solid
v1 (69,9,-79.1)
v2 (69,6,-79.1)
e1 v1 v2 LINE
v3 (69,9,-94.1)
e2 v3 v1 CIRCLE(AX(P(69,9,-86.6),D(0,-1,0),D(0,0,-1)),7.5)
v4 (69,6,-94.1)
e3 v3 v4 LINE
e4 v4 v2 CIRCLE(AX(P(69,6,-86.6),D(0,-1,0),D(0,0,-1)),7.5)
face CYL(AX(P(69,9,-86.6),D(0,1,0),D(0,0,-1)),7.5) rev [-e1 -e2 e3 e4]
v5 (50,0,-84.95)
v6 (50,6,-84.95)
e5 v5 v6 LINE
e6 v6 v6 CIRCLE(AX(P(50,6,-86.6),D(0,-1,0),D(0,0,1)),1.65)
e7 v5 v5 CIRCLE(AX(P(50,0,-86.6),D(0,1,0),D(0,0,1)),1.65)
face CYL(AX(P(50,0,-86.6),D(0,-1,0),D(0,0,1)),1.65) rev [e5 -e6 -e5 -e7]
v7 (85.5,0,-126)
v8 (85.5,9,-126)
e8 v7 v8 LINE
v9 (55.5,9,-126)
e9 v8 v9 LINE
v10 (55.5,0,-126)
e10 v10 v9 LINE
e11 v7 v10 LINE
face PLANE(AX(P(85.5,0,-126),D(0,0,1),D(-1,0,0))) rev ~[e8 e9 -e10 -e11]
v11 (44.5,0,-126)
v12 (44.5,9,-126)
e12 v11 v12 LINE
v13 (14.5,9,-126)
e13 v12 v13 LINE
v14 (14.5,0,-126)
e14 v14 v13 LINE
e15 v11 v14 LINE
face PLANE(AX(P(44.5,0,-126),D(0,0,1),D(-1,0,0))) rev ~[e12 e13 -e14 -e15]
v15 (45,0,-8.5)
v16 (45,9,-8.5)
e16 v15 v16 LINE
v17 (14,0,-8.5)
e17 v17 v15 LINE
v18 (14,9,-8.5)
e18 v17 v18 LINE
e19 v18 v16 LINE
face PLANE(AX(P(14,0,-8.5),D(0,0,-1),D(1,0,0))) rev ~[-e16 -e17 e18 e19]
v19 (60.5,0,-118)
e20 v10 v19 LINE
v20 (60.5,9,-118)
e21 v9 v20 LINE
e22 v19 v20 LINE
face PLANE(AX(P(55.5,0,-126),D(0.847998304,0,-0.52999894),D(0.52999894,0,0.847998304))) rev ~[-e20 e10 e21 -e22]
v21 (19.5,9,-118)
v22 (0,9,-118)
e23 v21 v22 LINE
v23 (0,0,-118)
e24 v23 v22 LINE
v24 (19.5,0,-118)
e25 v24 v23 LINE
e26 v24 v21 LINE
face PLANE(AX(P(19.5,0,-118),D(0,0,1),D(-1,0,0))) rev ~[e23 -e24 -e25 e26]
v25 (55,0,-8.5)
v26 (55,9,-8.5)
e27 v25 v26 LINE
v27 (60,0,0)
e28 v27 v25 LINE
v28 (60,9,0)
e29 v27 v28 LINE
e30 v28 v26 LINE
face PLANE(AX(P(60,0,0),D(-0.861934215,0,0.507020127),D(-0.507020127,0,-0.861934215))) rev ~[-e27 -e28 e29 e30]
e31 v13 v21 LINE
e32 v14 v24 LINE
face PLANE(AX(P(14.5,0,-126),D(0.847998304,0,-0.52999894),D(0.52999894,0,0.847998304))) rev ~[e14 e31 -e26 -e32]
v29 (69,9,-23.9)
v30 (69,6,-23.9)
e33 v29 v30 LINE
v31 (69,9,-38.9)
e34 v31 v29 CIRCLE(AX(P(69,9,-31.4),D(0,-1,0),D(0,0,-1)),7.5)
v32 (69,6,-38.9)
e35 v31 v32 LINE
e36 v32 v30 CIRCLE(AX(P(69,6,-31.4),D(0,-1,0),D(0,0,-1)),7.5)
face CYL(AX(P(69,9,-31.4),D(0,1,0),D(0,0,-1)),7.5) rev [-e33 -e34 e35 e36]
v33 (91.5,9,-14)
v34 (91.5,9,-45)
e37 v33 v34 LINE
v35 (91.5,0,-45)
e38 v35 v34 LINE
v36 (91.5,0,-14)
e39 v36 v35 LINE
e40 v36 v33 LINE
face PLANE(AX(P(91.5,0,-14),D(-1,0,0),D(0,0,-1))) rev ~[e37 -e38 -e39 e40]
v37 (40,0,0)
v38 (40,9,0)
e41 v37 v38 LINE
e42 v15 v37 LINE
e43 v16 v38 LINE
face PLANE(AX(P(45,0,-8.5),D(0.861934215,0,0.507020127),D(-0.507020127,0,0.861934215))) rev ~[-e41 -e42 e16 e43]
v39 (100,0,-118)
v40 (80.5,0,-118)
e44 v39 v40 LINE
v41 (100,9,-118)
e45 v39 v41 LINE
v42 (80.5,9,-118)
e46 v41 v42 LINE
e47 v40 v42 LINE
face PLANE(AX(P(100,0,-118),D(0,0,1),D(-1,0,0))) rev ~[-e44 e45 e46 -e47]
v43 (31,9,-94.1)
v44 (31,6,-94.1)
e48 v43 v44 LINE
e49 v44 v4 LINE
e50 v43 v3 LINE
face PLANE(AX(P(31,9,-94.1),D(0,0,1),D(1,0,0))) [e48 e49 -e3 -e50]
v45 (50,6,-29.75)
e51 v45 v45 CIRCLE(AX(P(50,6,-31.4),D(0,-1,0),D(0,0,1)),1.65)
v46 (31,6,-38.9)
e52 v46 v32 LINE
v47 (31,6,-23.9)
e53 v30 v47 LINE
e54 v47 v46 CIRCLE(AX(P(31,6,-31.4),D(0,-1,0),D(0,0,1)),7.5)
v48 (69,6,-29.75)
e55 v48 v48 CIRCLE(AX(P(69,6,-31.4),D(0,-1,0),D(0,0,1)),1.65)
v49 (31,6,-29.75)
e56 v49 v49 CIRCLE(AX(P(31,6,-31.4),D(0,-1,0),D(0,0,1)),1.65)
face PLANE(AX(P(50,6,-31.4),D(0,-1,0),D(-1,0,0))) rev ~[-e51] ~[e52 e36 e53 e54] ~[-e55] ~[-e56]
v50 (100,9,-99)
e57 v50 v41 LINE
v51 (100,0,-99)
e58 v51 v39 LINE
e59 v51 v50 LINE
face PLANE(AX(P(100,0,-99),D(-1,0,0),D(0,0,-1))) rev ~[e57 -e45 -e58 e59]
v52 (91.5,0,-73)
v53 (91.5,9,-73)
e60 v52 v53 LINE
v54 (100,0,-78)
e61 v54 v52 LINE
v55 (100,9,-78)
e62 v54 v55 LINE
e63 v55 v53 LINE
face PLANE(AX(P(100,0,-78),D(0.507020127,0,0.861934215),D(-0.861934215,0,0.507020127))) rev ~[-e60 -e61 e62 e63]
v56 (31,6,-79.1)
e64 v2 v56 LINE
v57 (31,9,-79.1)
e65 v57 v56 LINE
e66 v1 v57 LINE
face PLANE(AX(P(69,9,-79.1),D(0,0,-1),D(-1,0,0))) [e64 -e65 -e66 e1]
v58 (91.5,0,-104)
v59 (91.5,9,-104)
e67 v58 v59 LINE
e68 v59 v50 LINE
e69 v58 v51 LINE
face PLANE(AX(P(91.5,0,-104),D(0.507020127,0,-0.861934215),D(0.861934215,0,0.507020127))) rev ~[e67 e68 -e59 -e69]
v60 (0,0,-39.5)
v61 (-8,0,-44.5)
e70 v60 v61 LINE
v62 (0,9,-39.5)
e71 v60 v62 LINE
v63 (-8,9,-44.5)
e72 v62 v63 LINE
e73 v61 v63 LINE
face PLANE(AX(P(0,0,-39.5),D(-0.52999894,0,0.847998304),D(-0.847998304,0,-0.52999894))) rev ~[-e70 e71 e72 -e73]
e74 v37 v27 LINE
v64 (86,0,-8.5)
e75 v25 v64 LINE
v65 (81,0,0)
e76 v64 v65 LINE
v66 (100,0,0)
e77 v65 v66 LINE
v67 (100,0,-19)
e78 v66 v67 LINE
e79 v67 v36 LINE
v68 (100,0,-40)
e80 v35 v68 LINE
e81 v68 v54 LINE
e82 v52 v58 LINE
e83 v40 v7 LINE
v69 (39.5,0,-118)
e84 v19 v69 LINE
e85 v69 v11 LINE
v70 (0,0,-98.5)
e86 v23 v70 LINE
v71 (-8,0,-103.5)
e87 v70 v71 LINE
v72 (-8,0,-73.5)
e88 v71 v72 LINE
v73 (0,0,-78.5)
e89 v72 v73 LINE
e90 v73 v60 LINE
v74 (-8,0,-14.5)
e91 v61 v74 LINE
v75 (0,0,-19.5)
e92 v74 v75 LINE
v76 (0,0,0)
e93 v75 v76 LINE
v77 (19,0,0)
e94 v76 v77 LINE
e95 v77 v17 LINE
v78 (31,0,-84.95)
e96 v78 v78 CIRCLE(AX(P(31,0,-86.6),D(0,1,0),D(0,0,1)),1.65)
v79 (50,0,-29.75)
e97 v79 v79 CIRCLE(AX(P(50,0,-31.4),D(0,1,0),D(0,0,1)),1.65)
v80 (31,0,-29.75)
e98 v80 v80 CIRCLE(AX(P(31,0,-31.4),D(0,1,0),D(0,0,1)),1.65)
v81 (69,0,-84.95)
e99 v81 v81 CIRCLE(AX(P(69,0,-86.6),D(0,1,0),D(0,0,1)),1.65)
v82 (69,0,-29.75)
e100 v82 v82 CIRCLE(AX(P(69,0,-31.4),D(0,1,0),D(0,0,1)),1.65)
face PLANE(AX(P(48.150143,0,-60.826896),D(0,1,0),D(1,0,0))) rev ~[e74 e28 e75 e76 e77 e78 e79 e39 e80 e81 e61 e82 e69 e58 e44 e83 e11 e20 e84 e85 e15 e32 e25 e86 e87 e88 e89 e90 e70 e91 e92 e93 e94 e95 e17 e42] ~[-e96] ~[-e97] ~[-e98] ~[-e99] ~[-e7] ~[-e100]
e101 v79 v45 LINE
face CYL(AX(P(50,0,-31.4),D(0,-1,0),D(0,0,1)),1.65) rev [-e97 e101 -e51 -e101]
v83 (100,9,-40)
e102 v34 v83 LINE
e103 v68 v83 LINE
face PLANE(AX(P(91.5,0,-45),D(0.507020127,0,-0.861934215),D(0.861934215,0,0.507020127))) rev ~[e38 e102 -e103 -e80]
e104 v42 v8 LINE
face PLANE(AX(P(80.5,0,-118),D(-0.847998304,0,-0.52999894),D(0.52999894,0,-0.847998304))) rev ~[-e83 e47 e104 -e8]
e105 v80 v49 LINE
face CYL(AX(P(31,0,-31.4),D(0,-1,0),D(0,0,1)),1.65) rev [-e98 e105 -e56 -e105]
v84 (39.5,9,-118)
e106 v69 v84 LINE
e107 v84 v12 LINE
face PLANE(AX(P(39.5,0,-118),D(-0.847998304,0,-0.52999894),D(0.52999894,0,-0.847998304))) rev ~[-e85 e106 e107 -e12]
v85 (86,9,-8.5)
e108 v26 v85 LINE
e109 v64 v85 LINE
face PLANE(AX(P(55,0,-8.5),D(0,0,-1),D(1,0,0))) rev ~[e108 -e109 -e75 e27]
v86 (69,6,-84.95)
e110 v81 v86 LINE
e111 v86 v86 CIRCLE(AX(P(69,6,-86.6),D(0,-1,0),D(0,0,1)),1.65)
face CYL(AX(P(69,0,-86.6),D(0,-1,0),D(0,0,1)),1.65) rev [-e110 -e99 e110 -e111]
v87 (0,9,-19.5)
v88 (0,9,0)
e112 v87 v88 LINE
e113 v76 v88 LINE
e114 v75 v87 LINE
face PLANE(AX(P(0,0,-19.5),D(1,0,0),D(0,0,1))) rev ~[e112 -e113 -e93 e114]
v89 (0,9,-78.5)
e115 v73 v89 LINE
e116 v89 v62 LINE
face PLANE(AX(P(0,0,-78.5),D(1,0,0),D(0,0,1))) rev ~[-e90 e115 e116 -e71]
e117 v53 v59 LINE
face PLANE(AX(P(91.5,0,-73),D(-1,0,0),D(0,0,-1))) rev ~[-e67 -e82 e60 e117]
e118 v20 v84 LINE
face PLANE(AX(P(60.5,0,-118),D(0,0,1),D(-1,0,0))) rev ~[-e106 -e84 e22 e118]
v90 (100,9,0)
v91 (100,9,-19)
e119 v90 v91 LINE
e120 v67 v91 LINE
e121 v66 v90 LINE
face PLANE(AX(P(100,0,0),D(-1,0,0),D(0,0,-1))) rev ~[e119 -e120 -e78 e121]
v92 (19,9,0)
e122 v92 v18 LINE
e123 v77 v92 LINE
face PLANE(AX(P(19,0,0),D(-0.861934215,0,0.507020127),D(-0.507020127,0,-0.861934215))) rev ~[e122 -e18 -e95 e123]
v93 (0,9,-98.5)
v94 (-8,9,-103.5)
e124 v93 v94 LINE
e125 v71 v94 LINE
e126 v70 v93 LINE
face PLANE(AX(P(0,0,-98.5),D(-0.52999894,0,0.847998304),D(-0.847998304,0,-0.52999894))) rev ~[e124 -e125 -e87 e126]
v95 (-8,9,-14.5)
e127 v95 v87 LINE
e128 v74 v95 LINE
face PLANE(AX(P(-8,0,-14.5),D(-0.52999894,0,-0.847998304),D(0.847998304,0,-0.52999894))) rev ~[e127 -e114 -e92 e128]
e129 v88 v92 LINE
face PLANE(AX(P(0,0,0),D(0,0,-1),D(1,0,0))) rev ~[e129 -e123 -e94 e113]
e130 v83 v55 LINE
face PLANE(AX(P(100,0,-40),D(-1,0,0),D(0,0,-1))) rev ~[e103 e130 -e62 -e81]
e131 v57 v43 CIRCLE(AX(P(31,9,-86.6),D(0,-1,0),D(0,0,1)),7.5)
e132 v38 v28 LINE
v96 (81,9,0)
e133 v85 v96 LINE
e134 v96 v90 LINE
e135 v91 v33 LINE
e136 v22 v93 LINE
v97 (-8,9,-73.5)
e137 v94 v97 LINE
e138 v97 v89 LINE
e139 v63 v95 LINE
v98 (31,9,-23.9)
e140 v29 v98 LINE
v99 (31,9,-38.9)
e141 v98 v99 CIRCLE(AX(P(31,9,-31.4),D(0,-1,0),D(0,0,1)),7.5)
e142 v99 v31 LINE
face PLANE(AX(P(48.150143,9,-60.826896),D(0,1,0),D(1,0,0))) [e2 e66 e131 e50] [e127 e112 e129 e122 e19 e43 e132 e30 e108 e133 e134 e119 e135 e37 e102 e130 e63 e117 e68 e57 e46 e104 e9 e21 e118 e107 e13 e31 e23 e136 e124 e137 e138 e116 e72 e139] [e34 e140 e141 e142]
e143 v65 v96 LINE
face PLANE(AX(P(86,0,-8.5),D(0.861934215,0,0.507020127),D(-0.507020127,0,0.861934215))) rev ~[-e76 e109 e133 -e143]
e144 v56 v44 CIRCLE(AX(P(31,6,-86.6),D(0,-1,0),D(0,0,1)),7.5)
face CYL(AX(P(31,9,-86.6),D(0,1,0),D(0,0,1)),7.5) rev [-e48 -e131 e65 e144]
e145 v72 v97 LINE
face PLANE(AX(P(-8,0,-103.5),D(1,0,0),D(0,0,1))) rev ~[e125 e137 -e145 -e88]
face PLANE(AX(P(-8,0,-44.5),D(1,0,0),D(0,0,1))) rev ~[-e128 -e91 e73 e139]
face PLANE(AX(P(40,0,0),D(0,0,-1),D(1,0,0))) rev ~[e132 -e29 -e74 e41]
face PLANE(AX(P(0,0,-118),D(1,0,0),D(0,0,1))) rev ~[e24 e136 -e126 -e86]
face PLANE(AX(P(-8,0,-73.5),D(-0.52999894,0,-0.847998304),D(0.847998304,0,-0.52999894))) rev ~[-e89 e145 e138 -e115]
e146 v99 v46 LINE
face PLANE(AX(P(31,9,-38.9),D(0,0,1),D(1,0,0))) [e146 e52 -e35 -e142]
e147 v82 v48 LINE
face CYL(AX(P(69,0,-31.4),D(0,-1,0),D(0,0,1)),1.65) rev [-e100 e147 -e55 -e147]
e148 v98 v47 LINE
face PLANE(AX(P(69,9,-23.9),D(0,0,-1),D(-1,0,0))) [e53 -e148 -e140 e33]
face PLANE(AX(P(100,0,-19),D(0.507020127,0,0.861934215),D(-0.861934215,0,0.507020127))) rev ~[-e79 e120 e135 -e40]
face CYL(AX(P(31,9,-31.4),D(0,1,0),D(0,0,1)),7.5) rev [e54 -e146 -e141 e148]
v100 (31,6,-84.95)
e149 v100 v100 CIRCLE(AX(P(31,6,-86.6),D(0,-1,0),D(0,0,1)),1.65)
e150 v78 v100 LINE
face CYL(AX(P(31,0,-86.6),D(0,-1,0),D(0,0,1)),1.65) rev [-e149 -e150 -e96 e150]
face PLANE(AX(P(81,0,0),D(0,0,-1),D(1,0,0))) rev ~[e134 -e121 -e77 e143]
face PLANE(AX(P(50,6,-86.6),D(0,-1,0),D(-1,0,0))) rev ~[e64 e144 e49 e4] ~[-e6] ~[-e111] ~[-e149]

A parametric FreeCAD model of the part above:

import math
import FreeCAD as App
import Part
import Sketcher
from FreeCAD import Vector
Q = App.Units.Quantity

doc = App.newDocument("Part")
body = doc.addObject("PartDesign::Body", "Body")

# Sketch on XZ plane
sketch1 = body.newObject("Sketcher::SketchObject", "Sketch")
sketch1.AttachmentSupport = (doc.getObject("XZ_Plane"), [""])
sketch1.MapMode = "FlatFace"
sketch1.addGeometry([
    Part.LineSegment(Vector(0, -98.5, 0), Vector(-8, -103.5, 0)),  # 0
    Part.LineSegment(Vector(-8, -103.5, 0), Vector(-8, -73.5, 0)),  # 1
    Part.LineSegment(Vector(-8, -73.5, 0), Vector(0, -78.5, 0)),  # 2
    Part.LineSegment(Vector(0, -78.5, 0), Vector(0, -39.5, 0)),  # 3
    Part.LineSegment(Vector(0, -39.5, 0), Vector(-8, -44.5, 0)),  # 4
    Part.LineSegment(Vector(-8, -44.5, 0), Vector(-8, -14.5, 0)),  # 5
    Part.LineSegment(Vector(-8, -14.5, 0), Vector(0, -19.5, 0)),  # 6
    Part.LineSegment(Vector(0, -19.5, 0), Vector(0, 0, 0)),  # 7
    Part.LineSegment(Vector(0, 0, 0), Vector(19, 0, 0)),  # 8
    Part.LineSegment(Vector(19, 0, 0), Vector(14, -8.5, 0)),  # 9
    Part.LineSegment(Vector(14, -8.5, 0), Vector(45, -8.5, 0)),  # 10
    Part.LineSegment(Vector(45, -8.5, 0), Vector(40, 0, 0)),  # 11
    Part.LineSegment(Vector(40, 0, 0), Vector(60, 0, 0)),  # 12
    Part.LineSegment(Vector(60, 0, 0), Vector(55, -8.5, 0)),  # 13
    Part.LineSegment(Vector(55, -8.5, 0), Vector(86, -8.5, 0)),  # 14
    Part.LineSegment(Vector(86, -8.5, 0), Vector(81, 0, 0)),  # 15
    Part.LineSegment(Vector(81, 0, 0), Vector(100, 0, 0)),  # 16
    Part.LineSegment(Vector(100, 0, 0), Vector(100, -19, 0)),  # 17
    Part.LineSegment(Vector(100, -19, 0), Vector(91.5, -14, 0)),  # 18
    Part.LineSegment(Vector(91.5, -14, 0), Vector(91.5, -45, 0)),  # 19
    Part.LineSegment(Vector(91.5, -45, 0), Vector(100, -40, 0)),  # 20
    Part.LineSegment(Vector(100, -40, 0), Vector(100, -78, 0)),  # 21
    Part.LineSegment(Vector(100, -78, 0), Vector(91.5, -73, 0)),  # 22
    Part.LineSegment(Vector(91.5, -73, 0), Vector(91.5, -104, 0)),  # 23
    Part.LineSegment(Vector(91.5, -104, 0), Vector(100, -99, 0)),  # 24
    Part.LineSegment(Vector(100, -99, 0), Vector(100, -118, 0)),  # 25
    Part.LineSegment(Vector(100, -118, 0), Vector(80.5, -118, 0)),  # 26
    Part.LineSegment(Vector(80.5, -118, 0), Vector(85.5, -126, 0)),  # 27
    Part.LineSegment(Vector(85.5, -126, 0), Vector(55.5, -126, 0)),  # 28
    Part.LineSegment(Vector(55.5, -126, 0), Vector(60.5, -118, 0)),  # 29
    Part.LineSegment(Vector(60.5, -118, 0), Vector(39.5, -118, 0)),  # 30
    Part.LineSegment(Vector(39.5, -118, 0), Vector(44.5, -126, 0)),  # 31
    Part.LineSegment(Vector(44.5, -126, 0), Vector(14.5, -126, 0)),  # 32
    Part.LineSegment(Vector(14.5, -126, 0), Vector(19.5, -118, 0)),  # 33
    Part.LineSegment(Vector(19.5, -118, 0), Vector(0, -118, 0)),  # 34
    Part.LineSegment(Vector(0, -118, 0), Vector(0, -98.5, 0)),  # 35
    Part.Circle(Vector(31, -31.4, 0), Vector(0, 0, 1), 1.6),  # 36
    Part.Circle(Vector(50, -31.4, 0), Vector(0, 0, 1), 1.6),  # 37
    Part.Circle(Vector(69, -31.4, 0), Vector(0, 0, 1), 1.6),  # 38
    Part.Circle(Vector(31, -86.6, 0), Vector(0, 0, 1), 1.6),  # 39
    Part.Circle(Vector(50, -86.6, 0), Vector(0, 0, 1), 1.6),  # 40
    Part.Circle(Vector(69, -86.6, 0), Vector(0, 0, 1), 1.6),  # 41
], False)
sketch1.addConstraint([
    Sketcher.Constraint("Coincident", 0, 2, 1, 1),
    Sketcher.Constraint("Coincident", 1, 2, 2, 1),
    Sketcher.Constraint("Coincident", 2, 2, 3, 1),
    Sketcher.Constraint("Coincident", 3, 2, 4, 1),
    Sketcher.Constraint("Coincident", 4, 2, 5, 1),
    Sketcher.Constraint("Coincident", 5, 2, 6, 1),
    Sketcher.Constraint("Coincident", 6, 2, 7, 1),
    Sketcher.Constraint("Coincident", 7, 2, 8, 1),
    Sketcher.Constraint("Coincident", 8, 2, 9, 1),
    Sketcher.Constraint("Coincident", 9, 2, 10, 1),
    Sketcher.Constraint("Coincident", 10, 2, 11, 1),
    Sketcher.Constraint("Coincident", 11, 2, 12, 1),
    Sketcher.Constraint("Coincident", 12, 2, 13, 1),
    Sketcher.Constraint("Coincident", 13, 2, 14, 1),
    Sketcher.Constraint("Coincident", 14, 2, 15, 1),
    Sketcher.Constraint("Coincident", 15, 2, 16, 1),
    Sketcher.Constraint("Coincident", 16, 2, 17, 1),
    Sketcher.Constraint("Coincident", 17, 2, 18, 1),
    Sketcher.Constraint("Coincident", 18, 2, 19, 1),
    Sketcher.Constraint("Coincident", 19, 2, 20, 1),
    Sketcher.Constraint("Coincident", 20, 2, 21, 1),
    Sketcher.Constraint("Coincident", 21, 2, 22, 1),
    Sketcher.Constraint("Coincident", 22, 2, 23, 1),
    Sketcher.Constraint("Coincident", 23, 2, 24, 1),
    Sketcher.Constraint("Coincident", 24, 2, 25, 1),
    Sketcher.Constraint("Coincident", 25, 2, 26, 1),
    Sketcher.Constraint("Coincident", 26, 2, 27, 1),
    Sketcher.Constraint("Coincident", 27, 2, 28, 1),
    Sketcher.Constraint("Coincident", 28, 2, 29, 1),
    Sketcher.Constraint("Coincident", 29, 2, 30, 1),
    Sketcher.Constraint("Coincident", 30, 2, 31, 1),
    Sketcher.Constraint("Coincident", 31, 2, 32, 1),
    Sketcher.Constraint("Coincident", 32, 2, 33, 1),
    Sketcher.Constraint("Coincident", 33, 2, 34, 1),
    Sketcher.Constraint("Coincident", 34, 2, 35, 1),
    Sketcher.Constraint("Coincident", 35, 2, 0, 1),
    Sketcher.Constraint("Vertical", 1),
    Sketcher.Constraint("Vertical", 3),
    Sketcher.Constraint("Vertical", 5),
    Sketcher.Constraint("Vertical", 7),
    Sketcher.Constraint("Horizontal", 8),
    Sketcher.Constraint("Horizontal", 10),
    Sketcher.Constraint("Horizontal", 12),
    Sketcher.Constraint("Horizontal", 14),
    Sketcher.Constraint("Horizontal", 16),
    Sketcher.Constraint("Vertical", 17),
    Sketcher.Constraint("Vertical", 19),
    Sketcher.Constraint("Vertical", 21),
    Sketcher.Constraint("Vertical", 23),
    Sketcher.Constraint("Vertical", 25),
    Sketcher.Constraint("Horizontal", 26),
    Sketcher.Constraint("Horizontal", 28),
    Sketcher.Constraint("Horizontal", 30),
    Sketcher.Constraint("Horizontal", 32),
    Sketcher.Constraint("Horizontal", 34),
    Sketcher.Constraint("Vertical", 35),
    Sketcher.Constraint("Coincident", 7, 2, -1, 1),
    Sketcher.Constraint("Equal", 36, 37),
    Sketcher.Constraint("Equal", 37, 38),
    Sketcher.Constraint("Equal", 38, 39),
    Sketcher.Constraint("Equal", 39, 40),
    Sketcher.Constraint("Equal", 40, 41),
    Sketcher.Constraint("PointOnObject", 2, 2, -2),
    Sketcher.Constraint("PointOnObject", 11, 2, -1),
    Sketcher.Constraint("PointOnObject", 15, 2, -1),
    Sketcher.Constraint("PointOnObject", 34, 2, -2),
    Sketcher.Constraint("Parallel", 0, 4),
    Sketcher.Constraint("Parallel", 2, 6),
    Sketcher.Constraint("Parallel", 9, 13),
    Sketcher.Constraint("Parallel", 11, 15),
    Sketcher.Constraint("Perpendicular", 13, 18),
    Sketcher.Constraint("Perpendicular", 15, 20),
    Sketcher.Constraint("Parallel", 18, 22),
    Sketcher.Constraint("Parallel", 20, 24),
    Sketcher.Constraint("Perpendicular", 4, 27),
    Sketcher.Constraint("Perpendicular", 6, 29),
    Sketcher.Constraint("Parallel", 27, 31),
    Sketcher.Constraint("Parallel", 29, 33),
    Sketcher.Constraint("Horizontal", 36, 3, 37, 3),
    Sketcher.Constraint("Horizontal", 37, 3, 38, 3),
    Sketcher.Constraint("Horizontal", 39, 3, 40, 3),
    Sketcher.Constraint("Horizontal", 40, 3, 41, 3),
    Sketcher.Constraint("Horizontal", 10, 2, 13, 2),
    Sketcher.Constraint("Horizontal", 26, 2, 29, 2),
    Sketcher.Constraint("Horizontal", 28, 2, 31, 2),
    Sketcher.Constraint("Horizontal", 30, 2, 33, 2),
    Sketcher.Constraint("Vertical", 36, 3, 39, 3),
    Sketcher.Constraint("Vertical", 37, 3, 40, 3),
    Sketcher.Constraint("Vertical", 38, 3, 41, 3),
    Sketcher.Constraint("Vertical", 1, 2, 4, 2),
    Sketcher.Constraint("Vertical", 17, 2, 20, 2),
    Sketcher.Constraint("Vertical", 19, 2, 22, 2),
    Sketcher.Constraint("Vertical", 21, 2, 24, 2),
    Sketcher.Constraint("Equal", 10, 14),
    Sketcher.Constraint("Equal", 8, 16),
    Sketcher.Constraint("Equal", 28, 32),
    Sketcher.Constraint("Equal", 26, 34),
    Sketcher.Constraint("Equal", 32, 1),
    Sketcher.Constraint("Equal", 1, 5),
    Sketcher.Constraint("Equal", 34, 7),
    Sketcher.Constraint("Equal", 16, 17),
    Sketcher.Constraint("Equal", 14, 19),
    Sketcher.Constraint("Equal", 19, 23),
    Sketcher.Constraint("Equal", 17, 25),
    Sketcher.Constraint("Equal", 7, 35),
    Sketcher.Constraint("Equal", 0, 2),
    Sketcher.Constraint("Equal", 9, 11),
    Sketcher.Constraint("Equal", 15, 18),
    Sketcher.Constraint("Equal", 6, 27),
    Sketcher.Constraint("Diameter", 36, Q("3.3 mm")),
    Sketcher.Constraint("DistanceX", 8, 1, 8, 2, Q("19 mm")),
    Sketcher.Constraint("DistanceX", 10, 1, 10, 2, Q("31 mm")),
    Sketcher.Constraint("DistanceX", 12, 1, 12, 2, Q("20 mm")),
    Sketcher.Constraint("DistanceX", 28, 2, 28, 1, Q("30 mm")),
    Sketcher.Constraint("DistanceX", 30, 2, 30, 1, Q("21 mm")),
    Sketcher.Constraint("DistanceY", 3, 1, 3, 2, Q("39 mm")),
    Sketcher.Constraint("DistanceX", 26, 2, 26, 1, Q("19.5 mm")),
    Sketcher.Constraint("DistanceX", -1, 1, 36, 3, Q("31 mm")),
    Sketcher.Constraint("DistanceX", -1, 1, 37, 3, Q("50 mm")),
    Sketcher.Constraint("DistanceX", -1, 1, 38, 3, Q("69 mm")),
    Sketcher.Constraint("DistanceX", 0, 2, -1, 1, Q("8 mm")),
    Sketcher.Constraint("DistanceX", -1, 1, 9, 2, Q("14 mm")),
    Sketcher.Constraint("DistanceY", 6, 2, 9, 2, Q("11 mm")),
    Sketcher.Constraint("DistanceY", 36, 3, -1, 1, Q("31.4 mm")),
    Sketcher.Constraint("DistanceY", 39, 3, -1, 1, Q("86.6 mm")),
])
pad1 = body.newObject("PartDesign::Pad", "Pad")
pad1.Profile = sketch1
pad1.Length = 9
pad1.Reversed = True

# Sketch on XZ plane
sketch2 = body.newObject("Sketcher::SketchObject", "Sketch001")
sketch2.AttachmentSupport = (doc.getObject("XZ_Plane"), [""])
sketch2.MapMode = "FlatFace"
sketch2.AttachmentOffset = App.Placement(Vector(0, 0, -9), App.Rotation())
sketch2.addGeometry([
    Part.LineSegment(Vector(69, -94, 0), Vector(31, -94, 0)),  # 0
    Part.ArcOfCircle(Part.Circle(Vector(31, -87, 0), Vector(0, 0, 1), 8), math.radians(90), math.radians(270)),  # 1
    Part.LineSegment(Vector(31, -79, 0), Vector(69, -79, 0)),  # 2
    Part.ArcOfCircle(Part.Circle(Vector(69, -87, 0), Vector(0, 0, 1), 8), math.radians(-90), math.radians(90)),  # 3
    Part.LineSegment(Vector(69, -39, 0), Vector(31, -39, 0)),  # 4
    Part.ArcOfCircle(Part.Circle(Vector(31, -31, 0), Vector(0, 0, 1), 8), math.radians(90), math.radians(270)),  # 5
    Part.LineSegment(Vector(31, -24, 0), Vector(69, -24, 0)),  # 6
    Part.ArcOfCircle(Part.Circle(Vector(69, -31, 0), Vector(0, 0, 1), 8), math.radians(-90), math.radians(90)),  # 7
], False)
sketch2.addConstraint([
    Sketcher.Constraint("Tangent", 0, 2, 1, 2),
    Sketcher.Constraint("Tangent", 1, 1, 2, 1),
    Sketcher.Constraint("Tangent", 2, 2, 3, 2),
    Sketcher.Constraint("Tangent", 3, 1, 0, 1),
    Sketcher.Constraint("Tangent", 4, 2, 5, 2),
    Sketcher.Constraint("Tangent", 5, 1, 6, 1),
    Sketcher.Constraint("Tangent", 6, 2, 7, 2),
    Sketcher.Constraint("Tangent", 7, 1, 4, 1),
    Sketcher.Constraint("Horizontal", 0),
    Sketcher.Constraint("Horizontal", 2),
    Sketcher.Constraint("Horizontal", 4),
    Sketcher.Constraint("Horizontal", 6),
    Sketcher.Constraint("Equal", 3, 5),
    Sketcher.Constraint("Vertical", 1, 3, 5, 3),
    Sketcher.Constraint("Vertical", 3, 3, 7, 3),
    Sketcher.Constraint("Radius", 1, Q("7.5 mm")),
    Sketcher.Constraint("DistanceX", 0, 2, 0, 1, Q("38 mm")),
    Sketcher.Constraint("DistanceX", -1, 1, 1, 3, Q("31 mm")),
    Sketcher.Constraint("DistanceY", 1, 3, -1, 1, Q("86.6 mm")),
    Sketcher.Constraint("DistanceY", 5, 3, -1, 1, Q("31.4 mm")),
])
pocket1 = body.newObject("PartDesign::Pocket", "Pocket")
pocket1.Profile = sketch2
pocket1.Length = 3
pocket1.Reversed = True

doc.recompute()
